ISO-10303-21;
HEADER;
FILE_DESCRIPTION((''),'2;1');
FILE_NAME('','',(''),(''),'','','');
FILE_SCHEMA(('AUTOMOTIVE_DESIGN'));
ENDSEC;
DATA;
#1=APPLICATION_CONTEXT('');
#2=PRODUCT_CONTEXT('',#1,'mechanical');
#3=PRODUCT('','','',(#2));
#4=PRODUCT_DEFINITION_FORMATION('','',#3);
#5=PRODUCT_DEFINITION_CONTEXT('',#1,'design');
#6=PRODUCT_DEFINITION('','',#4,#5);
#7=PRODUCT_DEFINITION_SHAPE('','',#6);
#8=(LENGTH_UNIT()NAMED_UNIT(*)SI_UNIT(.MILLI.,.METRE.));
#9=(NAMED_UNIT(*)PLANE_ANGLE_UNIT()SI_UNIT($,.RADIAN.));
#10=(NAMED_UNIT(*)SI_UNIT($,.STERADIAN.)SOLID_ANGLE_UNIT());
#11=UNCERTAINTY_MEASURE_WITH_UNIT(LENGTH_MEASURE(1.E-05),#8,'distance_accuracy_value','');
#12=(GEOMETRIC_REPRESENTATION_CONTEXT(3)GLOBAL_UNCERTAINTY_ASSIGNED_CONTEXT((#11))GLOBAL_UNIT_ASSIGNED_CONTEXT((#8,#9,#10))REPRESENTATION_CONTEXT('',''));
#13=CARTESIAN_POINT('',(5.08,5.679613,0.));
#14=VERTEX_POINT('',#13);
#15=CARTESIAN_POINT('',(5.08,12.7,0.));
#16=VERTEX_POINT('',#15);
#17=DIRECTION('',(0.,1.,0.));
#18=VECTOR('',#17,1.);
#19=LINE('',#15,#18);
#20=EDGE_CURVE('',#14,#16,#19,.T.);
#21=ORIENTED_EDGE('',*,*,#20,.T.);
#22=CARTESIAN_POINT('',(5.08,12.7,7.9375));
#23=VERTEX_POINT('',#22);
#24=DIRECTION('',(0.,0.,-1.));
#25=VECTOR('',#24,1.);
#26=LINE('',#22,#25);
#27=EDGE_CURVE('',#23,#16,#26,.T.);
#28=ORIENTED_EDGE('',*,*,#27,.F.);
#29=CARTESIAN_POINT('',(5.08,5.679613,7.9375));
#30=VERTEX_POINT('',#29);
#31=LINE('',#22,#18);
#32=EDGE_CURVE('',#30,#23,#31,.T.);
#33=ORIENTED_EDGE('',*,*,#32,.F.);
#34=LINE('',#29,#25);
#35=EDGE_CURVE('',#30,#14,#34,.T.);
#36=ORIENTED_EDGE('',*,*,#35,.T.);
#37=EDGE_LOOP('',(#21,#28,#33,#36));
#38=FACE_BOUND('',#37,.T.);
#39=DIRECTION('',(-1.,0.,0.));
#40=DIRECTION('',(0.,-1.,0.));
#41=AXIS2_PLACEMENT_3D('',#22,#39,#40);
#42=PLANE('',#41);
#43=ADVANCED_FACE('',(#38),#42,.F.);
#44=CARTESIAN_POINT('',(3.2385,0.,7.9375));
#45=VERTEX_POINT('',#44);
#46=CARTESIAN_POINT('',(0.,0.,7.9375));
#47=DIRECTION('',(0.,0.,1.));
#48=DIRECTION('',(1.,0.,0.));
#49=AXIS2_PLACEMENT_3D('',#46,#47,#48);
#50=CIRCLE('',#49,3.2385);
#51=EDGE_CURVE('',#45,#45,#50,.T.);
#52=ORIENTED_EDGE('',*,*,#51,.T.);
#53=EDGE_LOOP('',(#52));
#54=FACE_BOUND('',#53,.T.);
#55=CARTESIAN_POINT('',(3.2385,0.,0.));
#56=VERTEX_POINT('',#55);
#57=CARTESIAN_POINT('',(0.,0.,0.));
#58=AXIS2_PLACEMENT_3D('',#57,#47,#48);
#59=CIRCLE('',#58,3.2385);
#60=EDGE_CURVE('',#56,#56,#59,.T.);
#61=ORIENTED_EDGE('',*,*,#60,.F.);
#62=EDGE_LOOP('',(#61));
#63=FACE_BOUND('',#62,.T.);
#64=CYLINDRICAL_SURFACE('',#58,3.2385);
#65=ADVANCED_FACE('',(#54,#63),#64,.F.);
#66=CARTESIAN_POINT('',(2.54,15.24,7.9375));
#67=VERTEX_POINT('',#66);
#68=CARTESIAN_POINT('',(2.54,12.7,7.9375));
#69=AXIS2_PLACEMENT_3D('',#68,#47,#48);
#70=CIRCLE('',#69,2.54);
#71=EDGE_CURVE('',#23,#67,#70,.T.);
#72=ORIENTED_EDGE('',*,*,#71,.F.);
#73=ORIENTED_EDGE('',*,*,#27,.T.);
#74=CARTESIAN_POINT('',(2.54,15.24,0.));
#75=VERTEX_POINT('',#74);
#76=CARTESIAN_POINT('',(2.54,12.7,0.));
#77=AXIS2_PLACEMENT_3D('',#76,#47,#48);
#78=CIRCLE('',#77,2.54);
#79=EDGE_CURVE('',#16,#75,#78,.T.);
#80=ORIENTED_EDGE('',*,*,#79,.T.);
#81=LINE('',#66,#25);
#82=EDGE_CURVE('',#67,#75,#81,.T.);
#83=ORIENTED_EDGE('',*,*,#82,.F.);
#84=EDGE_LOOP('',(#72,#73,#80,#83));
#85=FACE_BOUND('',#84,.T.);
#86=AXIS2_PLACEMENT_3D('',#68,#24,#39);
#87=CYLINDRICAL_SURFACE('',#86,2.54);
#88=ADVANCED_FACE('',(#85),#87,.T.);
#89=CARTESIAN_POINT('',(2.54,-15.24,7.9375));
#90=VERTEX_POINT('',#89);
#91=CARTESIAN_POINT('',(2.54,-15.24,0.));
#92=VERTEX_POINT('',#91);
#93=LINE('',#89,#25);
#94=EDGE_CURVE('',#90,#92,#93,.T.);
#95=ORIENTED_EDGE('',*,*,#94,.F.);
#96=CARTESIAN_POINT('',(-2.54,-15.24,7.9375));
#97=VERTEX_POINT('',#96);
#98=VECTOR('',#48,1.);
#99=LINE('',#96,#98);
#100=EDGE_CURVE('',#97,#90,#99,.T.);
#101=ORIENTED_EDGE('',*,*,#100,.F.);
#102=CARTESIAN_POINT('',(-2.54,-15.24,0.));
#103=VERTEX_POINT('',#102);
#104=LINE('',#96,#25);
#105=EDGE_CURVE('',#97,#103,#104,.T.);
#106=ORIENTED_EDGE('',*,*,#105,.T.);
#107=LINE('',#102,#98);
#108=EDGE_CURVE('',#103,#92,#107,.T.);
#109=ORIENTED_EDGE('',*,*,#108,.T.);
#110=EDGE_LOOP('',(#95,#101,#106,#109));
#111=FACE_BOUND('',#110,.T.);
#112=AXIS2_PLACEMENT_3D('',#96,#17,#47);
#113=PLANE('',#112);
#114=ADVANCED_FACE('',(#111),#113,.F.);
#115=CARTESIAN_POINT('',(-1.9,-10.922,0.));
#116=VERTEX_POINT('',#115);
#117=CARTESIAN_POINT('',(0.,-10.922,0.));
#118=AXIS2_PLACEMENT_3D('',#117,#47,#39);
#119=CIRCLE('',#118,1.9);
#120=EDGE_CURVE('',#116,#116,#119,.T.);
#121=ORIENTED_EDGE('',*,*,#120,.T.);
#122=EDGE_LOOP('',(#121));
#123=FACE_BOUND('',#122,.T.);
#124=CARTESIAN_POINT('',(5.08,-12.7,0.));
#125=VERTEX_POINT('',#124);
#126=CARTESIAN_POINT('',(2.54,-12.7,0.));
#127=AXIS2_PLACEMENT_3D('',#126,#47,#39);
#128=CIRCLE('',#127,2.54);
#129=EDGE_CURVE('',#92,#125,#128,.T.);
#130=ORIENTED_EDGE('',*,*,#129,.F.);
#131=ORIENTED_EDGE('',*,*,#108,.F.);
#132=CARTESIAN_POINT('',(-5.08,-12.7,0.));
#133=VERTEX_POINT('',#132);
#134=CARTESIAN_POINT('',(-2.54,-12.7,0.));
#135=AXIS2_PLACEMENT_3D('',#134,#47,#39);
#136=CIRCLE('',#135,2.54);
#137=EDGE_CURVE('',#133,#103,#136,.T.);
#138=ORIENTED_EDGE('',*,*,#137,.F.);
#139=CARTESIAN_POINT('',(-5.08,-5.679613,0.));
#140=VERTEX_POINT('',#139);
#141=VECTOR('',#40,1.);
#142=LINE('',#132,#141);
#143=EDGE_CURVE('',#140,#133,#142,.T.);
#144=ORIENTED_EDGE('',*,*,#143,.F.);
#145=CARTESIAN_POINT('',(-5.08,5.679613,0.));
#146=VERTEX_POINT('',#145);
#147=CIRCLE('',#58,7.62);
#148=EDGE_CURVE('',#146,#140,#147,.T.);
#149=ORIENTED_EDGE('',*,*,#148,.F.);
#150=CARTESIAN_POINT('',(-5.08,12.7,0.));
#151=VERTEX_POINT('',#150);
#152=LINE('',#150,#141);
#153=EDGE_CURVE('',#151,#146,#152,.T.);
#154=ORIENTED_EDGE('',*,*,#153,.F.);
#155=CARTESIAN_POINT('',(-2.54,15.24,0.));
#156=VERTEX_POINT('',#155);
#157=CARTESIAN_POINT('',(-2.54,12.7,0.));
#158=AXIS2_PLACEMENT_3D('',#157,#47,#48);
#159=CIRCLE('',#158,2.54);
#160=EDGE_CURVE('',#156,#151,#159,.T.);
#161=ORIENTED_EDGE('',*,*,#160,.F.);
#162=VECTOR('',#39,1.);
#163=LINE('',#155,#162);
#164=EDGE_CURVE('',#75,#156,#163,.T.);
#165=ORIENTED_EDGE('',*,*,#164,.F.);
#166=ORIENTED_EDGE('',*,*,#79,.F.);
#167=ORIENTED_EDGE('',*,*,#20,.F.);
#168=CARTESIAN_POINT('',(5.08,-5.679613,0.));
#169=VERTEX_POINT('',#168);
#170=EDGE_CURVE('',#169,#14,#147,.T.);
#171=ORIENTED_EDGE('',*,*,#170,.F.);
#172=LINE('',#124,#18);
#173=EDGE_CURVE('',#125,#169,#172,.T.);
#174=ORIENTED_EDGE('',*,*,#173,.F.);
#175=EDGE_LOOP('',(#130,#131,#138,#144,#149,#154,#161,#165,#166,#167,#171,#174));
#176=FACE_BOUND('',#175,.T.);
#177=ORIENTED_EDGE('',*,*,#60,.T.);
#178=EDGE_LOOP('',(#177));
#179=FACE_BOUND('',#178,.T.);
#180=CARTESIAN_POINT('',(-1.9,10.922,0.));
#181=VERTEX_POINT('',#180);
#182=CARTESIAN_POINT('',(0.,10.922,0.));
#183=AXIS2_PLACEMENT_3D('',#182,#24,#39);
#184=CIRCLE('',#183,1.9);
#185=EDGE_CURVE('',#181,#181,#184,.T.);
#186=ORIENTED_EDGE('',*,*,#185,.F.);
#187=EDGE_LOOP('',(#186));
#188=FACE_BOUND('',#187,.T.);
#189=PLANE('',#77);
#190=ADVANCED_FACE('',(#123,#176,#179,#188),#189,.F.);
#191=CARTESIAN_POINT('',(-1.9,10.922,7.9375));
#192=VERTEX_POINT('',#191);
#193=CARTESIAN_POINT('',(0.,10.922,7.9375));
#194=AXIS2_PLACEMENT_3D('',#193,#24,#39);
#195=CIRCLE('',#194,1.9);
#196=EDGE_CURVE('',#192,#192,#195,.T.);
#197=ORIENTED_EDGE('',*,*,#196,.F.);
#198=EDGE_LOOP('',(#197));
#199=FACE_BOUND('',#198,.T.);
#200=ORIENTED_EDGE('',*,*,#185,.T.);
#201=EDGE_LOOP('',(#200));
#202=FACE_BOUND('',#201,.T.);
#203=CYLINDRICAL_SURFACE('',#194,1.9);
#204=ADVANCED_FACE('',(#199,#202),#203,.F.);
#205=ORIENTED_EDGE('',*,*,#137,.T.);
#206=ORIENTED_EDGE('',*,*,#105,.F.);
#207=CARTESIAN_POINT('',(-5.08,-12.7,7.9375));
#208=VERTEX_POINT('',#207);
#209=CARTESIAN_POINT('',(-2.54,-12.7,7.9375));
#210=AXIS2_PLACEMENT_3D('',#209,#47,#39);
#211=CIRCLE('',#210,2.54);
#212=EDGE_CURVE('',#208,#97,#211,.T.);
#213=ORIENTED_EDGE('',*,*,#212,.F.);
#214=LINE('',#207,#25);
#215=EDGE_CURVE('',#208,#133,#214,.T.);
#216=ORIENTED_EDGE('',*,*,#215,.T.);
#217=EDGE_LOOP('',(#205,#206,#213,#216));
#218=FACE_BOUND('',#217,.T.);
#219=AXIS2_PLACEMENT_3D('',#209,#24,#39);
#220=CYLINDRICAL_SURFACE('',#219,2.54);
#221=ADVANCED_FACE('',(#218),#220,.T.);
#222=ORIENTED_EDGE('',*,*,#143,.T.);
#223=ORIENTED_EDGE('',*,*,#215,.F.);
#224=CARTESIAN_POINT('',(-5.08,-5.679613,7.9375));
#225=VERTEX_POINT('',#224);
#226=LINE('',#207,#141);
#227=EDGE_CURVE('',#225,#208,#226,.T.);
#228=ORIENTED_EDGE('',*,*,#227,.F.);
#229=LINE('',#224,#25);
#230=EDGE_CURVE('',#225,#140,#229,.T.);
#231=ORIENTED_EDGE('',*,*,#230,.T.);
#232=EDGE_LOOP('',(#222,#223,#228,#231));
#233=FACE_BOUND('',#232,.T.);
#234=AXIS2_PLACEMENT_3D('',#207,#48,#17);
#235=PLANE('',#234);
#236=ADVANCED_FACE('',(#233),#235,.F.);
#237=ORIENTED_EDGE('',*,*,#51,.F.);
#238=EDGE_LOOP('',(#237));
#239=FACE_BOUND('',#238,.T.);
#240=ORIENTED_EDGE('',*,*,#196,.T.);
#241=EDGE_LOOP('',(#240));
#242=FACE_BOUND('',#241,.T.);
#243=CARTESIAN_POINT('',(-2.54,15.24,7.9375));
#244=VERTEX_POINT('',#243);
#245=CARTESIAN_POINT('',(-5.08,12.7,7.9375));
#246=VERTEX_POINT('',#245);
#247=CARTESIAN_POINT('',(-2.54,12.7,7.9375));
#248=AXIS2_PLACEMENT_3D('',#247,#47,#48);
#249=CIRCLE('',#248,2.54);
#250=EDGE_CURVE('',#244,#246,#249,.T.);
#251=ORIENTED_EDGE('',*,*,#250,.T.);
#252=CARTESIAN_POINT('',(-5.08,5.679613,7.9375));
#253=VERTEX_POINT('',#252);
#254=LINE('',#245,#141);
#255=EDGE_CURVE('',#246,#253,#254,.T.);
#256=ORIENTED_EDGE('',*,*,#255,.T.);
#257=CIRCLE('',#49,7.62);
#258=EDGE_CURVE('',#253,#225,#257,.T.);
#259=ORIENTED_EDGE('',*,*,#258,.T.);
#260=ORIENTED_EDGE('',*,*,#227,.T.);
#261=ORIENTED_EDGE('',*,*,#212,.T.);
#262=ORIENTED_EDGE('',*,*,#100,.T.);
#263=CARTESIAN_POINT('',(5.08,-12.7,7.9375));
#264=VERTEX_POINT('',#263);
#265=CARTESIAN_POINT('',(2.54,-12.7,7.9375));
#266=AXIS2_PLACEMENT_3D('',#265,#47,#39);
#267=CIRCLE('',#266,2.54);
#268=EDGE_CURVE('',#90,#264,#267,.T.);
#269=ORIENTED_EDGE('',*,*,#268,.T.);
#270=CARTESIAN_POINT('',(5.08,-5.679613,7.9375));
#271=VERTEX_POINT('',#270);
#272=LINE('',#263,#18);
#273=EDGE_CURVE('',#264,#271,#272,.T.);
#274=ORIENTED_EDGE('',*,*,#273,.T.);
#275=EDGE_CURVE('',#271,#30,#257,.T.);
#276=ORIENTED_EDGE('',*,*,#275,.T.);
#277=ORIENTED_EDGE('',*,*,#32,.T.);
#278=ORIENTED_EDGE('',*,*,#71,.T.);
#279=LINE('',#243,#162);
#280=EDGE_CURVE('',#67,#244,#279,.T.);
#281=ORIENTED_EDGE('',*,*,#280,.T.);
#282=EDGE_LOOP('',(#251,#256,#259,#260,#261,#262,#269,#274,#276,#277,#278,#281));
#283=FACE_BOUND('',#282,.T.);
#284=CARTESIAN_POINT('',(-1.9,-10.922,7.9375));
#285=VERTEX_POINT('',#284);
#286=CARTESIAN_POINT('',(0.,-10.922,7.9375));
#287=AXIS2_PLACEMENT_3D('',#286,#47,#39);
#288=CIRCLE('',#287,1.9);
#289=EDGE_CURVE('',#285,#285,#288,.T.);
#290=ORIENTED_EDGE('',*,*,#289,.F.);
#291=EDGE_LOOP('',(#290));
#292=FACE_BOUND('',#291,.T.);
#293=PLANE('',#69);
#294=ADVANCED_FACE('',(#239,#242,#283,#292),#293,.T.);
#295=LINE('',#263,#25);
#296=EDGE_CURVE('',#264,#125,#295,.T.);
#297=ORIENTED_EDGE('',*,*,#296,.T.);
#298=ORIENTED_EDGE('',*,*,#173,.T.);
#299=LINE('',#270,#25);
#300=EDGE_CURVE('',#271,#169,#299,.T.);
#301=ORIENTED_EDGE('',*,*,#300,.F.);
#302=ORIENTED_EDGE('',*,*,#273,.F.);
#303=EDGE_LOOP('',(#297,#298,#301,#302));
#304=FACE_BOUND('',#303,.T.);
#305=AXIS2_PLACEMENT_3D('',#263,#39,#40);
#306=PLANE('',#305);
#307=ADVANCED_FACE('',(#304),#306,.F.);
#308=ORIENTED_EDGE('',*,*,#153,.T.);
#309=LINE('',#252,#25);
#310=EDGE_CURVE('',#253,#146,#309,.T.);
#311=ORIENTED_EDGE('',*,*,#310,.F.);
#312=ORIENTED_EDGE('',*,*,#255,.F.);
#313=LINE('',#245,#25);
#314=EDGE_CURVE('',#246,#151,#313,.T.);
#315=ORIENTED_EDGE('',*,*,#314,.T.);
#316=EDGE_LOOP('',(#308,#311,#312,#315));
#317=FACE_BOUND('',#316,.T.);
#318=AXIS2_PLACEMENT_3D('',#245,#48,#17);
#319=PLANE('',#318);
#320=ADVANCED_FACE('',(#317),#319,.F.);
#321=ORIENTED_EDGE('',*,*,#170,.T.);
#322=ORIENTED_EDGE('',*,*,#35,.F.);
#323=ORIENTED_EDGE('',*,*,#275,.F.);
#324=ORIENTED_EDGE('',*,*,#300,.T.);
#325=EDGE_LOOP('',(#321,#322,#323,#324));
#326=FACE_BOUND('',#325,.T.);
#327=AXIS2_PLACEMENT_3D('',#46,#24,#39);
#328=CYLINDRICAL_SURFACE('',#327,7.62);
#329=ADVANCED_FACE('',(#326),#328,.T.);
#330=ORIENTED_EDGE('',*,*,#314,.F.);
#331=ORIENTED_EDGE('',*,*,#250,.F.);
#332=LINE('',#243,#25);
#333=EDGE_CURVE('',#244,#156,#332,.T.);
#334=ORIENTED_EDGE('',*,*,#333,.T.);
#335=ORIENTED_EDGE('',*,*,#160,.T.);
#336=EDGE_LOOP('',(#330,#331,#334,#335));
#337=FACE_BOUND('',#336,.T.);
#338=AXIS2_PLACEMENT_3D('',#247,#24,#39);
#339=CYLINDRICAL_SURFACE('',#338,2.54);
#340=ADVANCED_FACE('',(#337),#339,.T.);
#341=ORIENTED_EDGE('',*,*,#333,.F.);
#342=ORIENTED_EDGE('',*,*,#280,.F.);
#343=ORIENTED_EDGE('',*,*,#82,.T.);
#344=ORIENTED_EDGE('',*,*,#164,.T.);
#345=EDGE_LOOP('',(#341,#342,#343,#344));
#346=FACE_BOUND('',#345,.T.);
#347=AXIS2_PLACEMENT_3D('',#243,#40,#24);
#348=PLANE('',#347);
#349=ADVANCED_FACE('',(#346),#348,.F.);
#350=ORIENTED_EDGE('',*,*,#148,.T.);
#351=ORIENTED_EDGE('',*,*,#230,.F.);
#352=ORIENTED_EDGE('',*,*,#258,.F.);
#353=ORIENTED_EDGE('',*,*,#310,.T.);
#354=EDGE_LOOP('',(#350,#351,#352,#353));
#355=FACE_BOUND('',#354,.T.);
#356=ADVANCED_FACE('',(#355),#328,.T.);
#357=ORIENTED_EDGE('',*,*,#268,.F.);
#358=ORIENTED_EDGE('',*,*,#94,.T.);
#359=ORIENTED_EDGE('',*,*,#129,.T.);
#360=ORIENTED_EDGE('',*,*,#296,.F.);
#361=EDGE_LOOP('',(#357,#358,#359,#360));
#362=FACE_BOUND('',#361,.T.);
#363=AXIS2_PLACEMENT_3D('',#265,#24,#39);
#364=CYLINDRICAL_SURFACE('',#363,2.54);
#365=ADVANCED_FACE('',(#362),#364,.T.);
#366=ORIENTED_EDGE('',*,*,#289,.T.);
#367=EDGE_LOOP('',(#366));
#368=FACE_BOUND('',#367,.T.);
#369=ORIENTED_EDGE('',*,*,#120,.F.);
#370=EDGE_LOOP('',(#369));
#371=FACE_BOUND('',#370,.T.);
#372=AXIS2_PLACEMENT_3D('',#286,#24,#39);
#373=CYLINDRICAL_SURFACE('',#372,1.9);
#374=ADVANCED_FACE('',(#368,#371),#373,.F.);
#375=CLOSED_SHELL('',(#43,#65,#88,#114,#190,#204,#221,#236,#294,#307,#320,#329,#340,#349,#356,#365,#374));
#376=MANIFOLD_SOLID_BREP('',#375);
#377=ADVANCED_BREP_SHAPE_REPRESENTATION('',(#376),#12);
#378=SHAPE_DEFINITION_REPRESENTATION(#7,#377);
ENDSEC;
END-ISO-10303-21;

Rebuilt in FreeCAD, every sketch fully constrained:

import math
import FreeCAD as App
import Part
import Sketcher
Q = App.Units.Quantity

doc = App.newDocument("Part")
params = doc.addObject("Spreadsheet::Sheet", "Params")
for row, (alias, value) in enumerate([
    ("sketch1_radius", "0.3 in"),
    ("sketch1_radius2", "0.1 in"),
    ("sketch1_width", "0.2 in"),
    ("pad1_length", "0.3125 in"),
    ("sketch3_diameter", "0.255 in"),
], start=1):
    params.set(f"A{row}", alias)
    params.set(f"B{row}", "=" + value)
    params.setAlias(f"B{row}", alias)

body = doc.addObject("PartDesign::Body", "Body")

sketch1 = body.newObject("Sketcher::SketchObject", "Sketch")
sketch1.AttachmentSupport = (doc.getObject("XY_Plane"), [""])
sketch1.MapMode = "FlatFace"
sketch1.addGeometry([
    Part.LineSegment(App.Vector(-5.1, 12.7, 0), App.Vector(-5.1, 5.7, 0)),
    Part.ArcOfCircle(Part.Circle(App.Vector(0, 0, 0), App.Vector(0, 0, 1), 7.6), math.radians(132), math.radians(228)),
    Part.LineSegment(App.Vector(-5.1, -5.7, 0), App.Vector(-5.1, -12.7, 0)),
    Part.ArcOfCircle(Part.Circle(App.Vector(-2.5, -12.7, 0), App.Vector(0, 0, 1), 2.5), math.radians(-180), math.radians(-90)),
    Part.LineSegment(App.Vector(-2.5, -15.2, 0), App.Vector(2.5, -15.2, 0)),
    Part.ArcOfCircle(Part.Circle(App.Vector(2.5, -12.7, 0), App.Vector(0, 0, 1), 2.5), math.radians(-90), math.radians(0)),
    Part.LineSegment(App.Vector(5.1, -12.7, 0), App.Vector(5.1, -5.7, 0)),
    Part.ArcOfCircle(Part.Circle(App.Vector(0, 0, 0), App.Vector(0, 0, 1), 7.6), math.radians(-48), math.radians(48)),
    Part.LineSegment(App.Vector(5.1, 5.7, 0), App.Vector(5.1, 12.7, 0)),
    Part.ArcOfCircle(Part.Circle(App.Vector(2.5, 12.7, 0), App.Vector(0, 0, 1), 2.5), math.radians(0), math.radians(90)),
    Part.LineSegment(App.Vector(2.5, 15.2, 0), App.Vector(-2.5, 15.2, 0)),
    Part.ArcOfCircle(Part.Circle(App.Vector(-2.5, 12.7, 0), App.Vector(0, 0, 1), 2.5), math.radians(90), math.radians(180)),
], False)
sketch1.addConstraint([
    Sketcher.Constraint("Coincident", 0, 2, 1, 1),
    Sketcher.Constraint("Coincident", 1, 2, 2, 1),
    Sketcher.Constraint("Tangent", 2, 2, 3, 1),
    Sketcher.Constraint("Tangent", 3, 2, 4, 1),
    Sketcher.Constraint("Tangent", 4, 2, 5, 1),
    Sketcher.Constraint("Tangent", 5, 2, 6, 1),
    Sketcher.Constraint("Coincident", 6, 2, 7, 1),
    Sketcher.Constraint("Coincident", 7, 2, 8, 1),
    Sketcher.Constraint("Tangent", 8, 2, 9, 1),
    Sketcher.Constraint("Tangent", 9, 2, 10, 1),
    Sketcher.Constraint("Tangent", 10, 2, 11, 1),
    Sketcher.Constraint("Tangent", 11, 2, 0, 1),
    Sketcher.Constraint("Vertical", 0),
    Sketcher.Constraint("Vertical", 2),
    Sketcher.Constraint("Horizontal", 4),
    Sketcher.Constraint("Vertical", 6),
    Sketcher.Constraint("Vertical", 8),
    Sketcher.Constraint("Horizontal", 10),
    Sketcher.Constraint("Coincident", 1, 3, -1, 1),
    Sketcher.Constraint("Coincident", 7, 3, -1, 1),
    Sketcher.Constraint("Equal", 3, 5),
    Sketcher.Constraint("Equal", 1, 7),
    Sketcher.Constraint("Equal", 5, 9),
    Sketcher.Constraint("Equal", 9, 11),
    Sketcher.Constraint("Symmetric", 3, 3, 9, 3, -1, 1),
    Sketcher.Constraint("Horizontal", 1, 2, 6, 2),
    Sketcher.Constraint("Horizontal", 0, 2, 7, 2),
    Sketcher.Constraint("Radius", 1, Q("0.3 in")),
    Sketcher.Constraint("Radius", 3, Q("0.1 in")),
    Sketcher.Constraint("DistanceX", 4, 1, 4, 2, Q("0.2 in")),
    Sketcher.Constraint("DistanceY", 5, 3, 9, 3, Q("1 in")),
])
sketch1.setExpression("Constraints[27]", "Params.sketch1_radius")
sketch1.setExpression("Constraints[28]", "Params.sketch1_radius2")
sketch1.setExpression("Constraints[29]", "Params.sketch1_width")
pad1 = body.newObject("PartDesign::Pad", "Pad")
pad1.Profile = sketch1
pad1.setExpression("Length", "Params.pad1_length")

sketch2 = body.newObject("Sketcher::SketchObject", "Sketch001")
sketch2.AttachmentSupport = (doc.getObject("XY_Plane"), [""])
sketch2.MapMode = "FlatFace"
sketch2.addGeometry(Part.Circle(App.Vector(0, 10.9, 0), App.Vector(0, 0, 1), 1.9), False)
sketch2.addConstraint([
    Sketcher.Constraint("PointOnObject", 0, 3, -2),
    Sketcher.Constraint("Diameter", 0, 3.8),
    Sketcher.Constraint("DistanceY", -1, 1, 0, 3, Q("0.43 in")),
])
pocket1 = body.newObject("PartDesign::Pocket", "Pocket")
pocket1.Profile = sketch2
pocket1.Type = "ThroughAll"
pocket1.Reversed = True
doc.recompute()

mirrored = body.newObject("PartDesign::Mirrored", "Mirrored")
mirrored.Originals = [pocket1]
mirrored.MirrorPlane = (doc.getObject("XZ_Plane"), [""])
body.Tip = mirrored

sketch3 = body.newObject("Sketcher::SketchObject", "Sketch002")
sketch3.AttachmentSupport = (doc.getObject("XY_Plane"), [""])
sketch3.MapMode = "FlatFace"
sketch3.AttachmentOffset = App.Placement(App.Vector(0, 0, 0.3125 * 25.4), App.Rotation())
sketch3.addGeometry(Part.Circle(App.Vector(0, 0, 0), App.Vector(0, 0, 1), 3.2), False)
sketch3.addConstraint([
    Sketcher.Constraint("Coincident", 0, 3, -1, 1),
    Sketcher.Constraint("Diameter", 0, Q("0.255 in")),
])
sketch3.setExpression("Constraints[1]", "Params.sketch3_diameter")
pocket2 = body.newObject("PartDesign::Pocket", "Pocket001")
pocket2.Profile = sketch3
pocket2.Type = "ThroughAll"

doc.recompute()
